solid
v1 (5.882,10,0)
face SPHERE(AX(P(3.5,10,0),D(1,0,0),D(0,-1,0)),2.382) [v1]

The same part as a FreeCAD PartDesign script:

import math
import FreeCAD as App
import Part
import Sketcher

V = App.Vector

doc = App.newDocument("Part")
body = doc.addObject("PartDesign::Body", "Body")

sketch1 = doc.addObject("Sketcher::SketchObject", "Sketch")
body.addObject(sketch1)
sketch1.AttachmentSupport = (doc.XY_Plane, [""])
sketch1.MapMode = "FlatFace"
sketch1.addGeometry([
    Part.LineSegment(V(1.1, 10, 0), V(5.9, 10, 0)),
    Part.ArcOfCircle(Part.Circle(V(3.5, 10, 0), V(0, 0, 1), 2.4), math.radians(0), math.radians(180)),
], False)
sketch1.addGeometry(Part.LineSegment(V(5.9, 10, 0), V(1.1, 10, 0)), True)
sketch1.addConstraint([
    Sketcher.Constraint("Coincident", 0, 1, 1, 2),
    Sketcher.Constraint("Coincident", 1, 1, 0, 2),
    Sketcher.Constraint("Horizontal", 0),
    Sketcher.Constraint("Horizontal", 2),
    Sketcher.Constraint("Coincident", 2, 1, 1, 1),
    Sketcher.Constraint("Horizontal", 1, 3, 0, 1),
    Sketcher.Constraint("Equal", 0, 2),
    Sketcher.Constraint("DistanceY", -1, 1, 1, 3, 10.0),
    Sketcher.Constraint("Radius", 1, 2.382),
    Sketcher.Constraint("DistanceX", -1, 1, 1, 3, 3.5),
])
revolution = doc.addObject("PartDesign::Revolution", "Revolution")
body.addObject(revolution)
revolution.Profile = sketch1
revolution.ReferenceAxis = (sketch1, ["Axis0"])
revolution.Angle = 360

doc.recompute()
